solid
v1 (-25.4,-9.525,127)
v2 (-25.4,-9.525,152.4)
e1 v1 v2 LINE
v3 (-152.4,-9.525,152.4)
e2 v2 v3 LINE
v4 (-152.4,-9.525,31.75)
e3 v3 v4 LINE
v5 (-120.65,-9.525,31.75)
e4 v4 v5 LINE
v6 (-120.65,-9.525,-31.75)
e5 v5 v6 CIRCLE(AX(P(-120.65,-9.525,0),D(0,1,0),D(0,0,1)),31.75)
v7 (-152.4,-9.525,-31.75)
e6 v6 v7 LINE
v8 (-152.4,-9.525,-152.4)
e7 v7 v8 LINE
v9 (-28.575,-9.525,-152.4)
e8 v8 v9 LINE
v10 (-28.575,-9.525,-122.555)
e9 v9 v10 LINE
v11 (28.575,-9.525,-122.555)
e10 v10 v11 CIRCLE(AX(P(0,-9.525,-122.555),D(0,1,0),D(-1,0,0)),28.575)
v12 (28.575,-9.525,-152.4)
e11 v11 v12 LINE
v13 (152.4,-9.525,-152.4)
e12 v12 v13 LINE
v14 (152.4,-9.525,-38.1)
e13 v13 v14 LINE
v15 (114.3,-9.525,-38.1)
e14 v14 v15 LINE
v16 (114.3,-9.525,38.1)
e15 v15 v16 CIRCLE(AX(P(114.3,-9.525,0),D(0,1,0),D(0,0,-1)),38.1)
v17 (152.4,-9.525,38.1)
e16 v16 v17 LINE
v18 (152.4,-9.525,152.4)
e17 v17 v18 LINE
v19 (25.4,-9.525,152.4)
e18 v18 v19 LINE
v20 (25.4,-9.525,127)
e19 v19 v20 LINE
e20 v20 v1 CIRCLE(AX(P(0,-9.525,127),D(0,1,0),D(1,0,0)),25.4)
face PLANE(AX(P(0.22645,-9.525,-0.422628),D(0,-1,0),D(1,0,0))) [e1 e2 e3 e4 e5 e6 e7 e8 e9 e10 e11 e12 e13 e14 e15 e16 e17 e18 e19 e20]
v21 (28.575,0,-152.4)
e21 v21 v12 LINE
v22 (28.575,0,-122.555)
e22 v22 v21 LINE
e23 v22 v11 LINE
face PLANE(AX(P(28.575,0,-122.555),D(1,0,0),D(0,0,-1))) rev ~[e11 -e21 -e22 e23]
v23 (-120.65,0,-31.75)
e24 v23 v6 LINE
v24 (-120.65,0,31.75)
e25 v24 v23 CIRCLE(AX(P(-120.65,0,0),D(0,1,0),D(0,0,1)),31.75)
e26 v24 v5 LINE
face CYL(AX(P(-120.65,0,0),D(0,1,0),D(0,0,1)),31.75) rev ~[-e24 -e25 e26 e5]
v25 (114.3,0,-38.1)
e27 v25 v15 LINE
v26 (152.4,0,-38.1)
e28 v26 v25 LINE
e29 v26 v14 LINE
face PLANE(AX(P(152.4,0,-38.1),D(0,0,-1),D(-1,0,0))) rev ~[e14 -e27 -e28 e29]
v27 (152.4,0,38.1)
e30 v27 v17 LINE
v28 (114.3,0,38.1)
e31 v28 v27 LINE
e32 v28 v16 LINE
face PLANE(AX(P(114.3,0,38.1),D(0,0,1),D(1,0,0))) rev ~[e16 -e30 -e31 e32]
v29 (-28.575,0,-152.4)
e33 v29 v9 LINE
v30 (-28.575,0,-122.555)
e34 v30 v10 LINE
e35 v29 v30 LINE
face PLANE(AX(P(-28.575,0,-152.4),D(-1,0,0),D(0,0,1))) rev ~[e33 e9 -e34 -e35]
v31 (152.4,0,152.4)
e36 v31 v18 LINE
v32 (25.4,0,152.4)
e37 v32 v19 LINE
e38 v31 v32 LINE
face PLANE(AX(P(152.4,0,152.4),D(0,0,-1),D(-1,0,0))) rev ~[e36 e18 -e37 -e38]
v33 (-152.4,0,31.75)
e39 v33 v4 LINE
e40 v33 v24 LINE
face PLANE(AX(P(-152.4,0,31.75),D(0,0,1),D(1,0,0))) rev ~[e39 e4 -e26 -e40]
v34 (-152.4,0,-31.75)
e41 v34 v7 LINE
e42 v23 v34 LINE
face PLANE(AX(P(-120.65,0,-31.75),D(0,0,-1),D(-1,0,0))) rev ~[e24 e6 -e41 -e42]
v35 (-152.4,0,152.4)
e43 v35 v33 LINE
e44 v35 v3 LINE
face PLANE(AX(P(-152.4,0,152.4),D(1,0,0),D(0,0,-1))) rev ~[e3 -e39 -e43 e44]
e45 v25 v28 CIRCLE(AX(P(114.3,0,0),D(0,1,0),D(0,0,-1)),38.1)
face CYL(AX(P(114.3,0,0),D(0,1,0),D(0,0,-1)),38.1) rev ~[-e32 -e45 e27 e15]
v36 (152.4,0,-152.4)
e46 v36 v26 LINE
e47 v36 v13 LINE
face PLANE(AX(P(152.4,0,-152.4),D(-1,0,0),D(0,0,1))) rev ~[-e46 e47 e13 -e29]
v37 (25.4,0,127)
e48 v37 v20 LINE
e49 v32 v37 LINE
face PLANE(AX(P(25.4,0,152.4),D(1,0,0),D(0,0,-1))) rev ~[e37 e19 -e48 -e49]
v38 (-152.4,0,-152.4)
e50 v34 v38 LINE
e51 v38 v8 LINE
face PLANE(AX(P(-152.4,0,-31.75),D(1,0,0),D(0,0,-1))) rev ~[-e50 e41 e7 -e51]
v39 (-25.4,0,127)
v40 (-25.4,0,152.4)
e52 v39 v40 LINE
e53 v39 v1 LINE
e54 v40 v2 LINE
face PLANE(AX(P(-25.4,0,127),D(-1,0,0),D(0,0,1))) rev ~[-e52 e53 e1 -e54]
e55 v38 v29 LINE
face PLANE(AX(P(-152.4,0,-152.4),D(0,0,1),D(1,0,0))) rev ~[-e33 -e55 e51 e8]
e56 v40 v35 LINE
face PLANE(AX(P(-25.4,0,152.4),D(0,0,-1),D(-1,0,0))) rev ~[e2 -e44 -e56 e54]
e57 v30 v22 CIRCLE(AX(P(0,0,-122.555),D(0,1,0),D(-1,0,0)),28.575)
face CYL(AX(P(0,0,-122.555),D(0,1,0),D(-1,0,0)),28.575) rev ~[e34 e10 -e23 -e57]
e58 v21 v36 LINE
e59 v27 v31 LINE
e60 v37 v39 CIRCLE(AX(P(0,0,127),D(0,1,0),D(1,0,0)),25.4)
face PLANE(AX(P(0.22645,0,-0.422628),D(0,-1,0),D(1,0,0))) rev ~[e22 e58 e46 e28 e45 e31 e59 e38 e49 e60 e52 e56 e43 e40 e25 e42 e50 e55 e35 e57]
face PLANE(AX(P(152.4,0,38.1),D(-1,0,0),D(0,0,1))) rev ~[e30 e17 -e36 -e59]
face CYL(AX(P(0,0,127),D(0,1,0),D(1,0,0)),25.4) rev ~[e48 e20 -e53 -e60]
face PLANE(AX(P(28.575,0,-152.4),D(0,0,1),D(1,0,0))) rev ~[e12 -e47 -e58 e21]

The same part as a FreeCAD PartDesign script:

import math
import FreeCAD as App
import Part
import Sketcher

V = App.Vector
Q = App.Units.Quantity

doc = App.newDocument("Part")
body = doc.addObject("PartDesign::Body", "Body")

# Sketch on XZ plane
sketch1 = body.newObject("Sketcher::SketchObject", "Sketch")
sketch1.AttachmentSupport = (doc.getObject("XZ_Plane"), [""])
sketch1.MapMode = "FlatFace"
sketch1.addGeometry(Part.LineSegment(V(152, 38, 0), V(152, 152, 0)), False)
sketch1.addGeometry(Part.LineSegment(V(152, 152, 0), V(25, 152, 0)), False)
sketch1.addGeometry(Part.LineSegment(V(25, 152, 0), V(25, 127, 0)), False)
sketch1.addGeometry(Part.ArcOfCircle(Part.Circle(V(0, 127, 0), V(0, 0, 1), 25), math.radians(180), math.radians(360)), False)
sketch1.addGeometry(Part.LineSegment(V(-25, 127, 0), V(-25, 152, 0)), False)
sketch1.addGeometry(Part.LineSegment(V(-25, 152, 0), V(-152, 152, 0)), False)
sketch1.addGeometry(Part.LineSegment(V(-152, 152, 0), V(-152, 32, 0)), False)
sketch1.addGeometry(Part.LineSegment(V(-152, 32, 0), V(-121, 32, 0)), False)
sketch1.addGeometry(Part.ArcOfCircle(Part.Circle(V(-121, 0, 0), V(0, 0, 1), 32), math.radians(-90), math.radians(90)), False)
sketch1.addGeometry(Part.LineSegment(V(-121, -32, 0), V(-152, -32, 0)), False)
sketch1.addGeometry(Part.LineSegment(V(-152, -32, 0), V(-152, -152, 0)), False)
sketch1.addGeometry(Part.LineSegment(V(-152, -152, 0), V(-29, -152, 0)), False)
sketch1.addGeometry(Part.LineSegment(V(-29, -152, 0), V(-29, -123, 0)), False)
sketch1.addGeometry(Part.ArcOfCircle(Part.Circle(V(0, -123, 0), V(0, 0, 1), 29), math.radians(0), math.radians(180)), False)
sketch1.addGeometry(Part.LineSegment(V(29, -123, 0), V(29, -152, 0)), False)
sketch1.addGeometry(Part.LineSegment(V(29, -152, 0), V(152, -152, 0)), False)
sketch1.addGeometry(Part.LineSegment(V(152, -152, 0), V(152, -38, 0)), False)
sketch1.addGeometry(Part.LineSegment(V(152, -38, 0), V(114, -38, 0)), False)
sketch1.addGeometry(Part.ArcOfCircle(Part.Circle(V(114, 0, 0), V(0, 0, 1), 38), math.radians(90), math.radians(270)), False)
sketch1.addGeometry(Part.LineSegment(V(114, 38, 0), V(152, 38, 0)), False)
sketch1.addConstraint(Sketcher.Constraint("Coincident", 0, 2, 1, 1))
sketch1.addConstraint(Sketcher.Constraint("Coincident", 1, 2, 2, 1))
sketch1.addConstraint(Sketcher.Constraint("Tangent", 2, 2, 3, 2))
sketch1.addConstraint(Sketcher.Constraint("Tangent", 3, 1, 4, 1))
sketch1.addConstraint(Sketcher.Constraint("Coincident", 4, 2, 5, 1))
sketch1.addConstraint(Sketcher.Constraint("Coincident", 5, 2, 6, 1))
sketch1.addConstraint(Sketcher.Constraint("Coincident", 6, 2, 7, 1))
sketch1.addConstraint(Sketcher.Constraint("Tangent", 7, 2, 8, 2))
sketch1.addConstraint(Sketcher.Constraint("Tangent", 8, 1, 9, 1))
sketch1.addConstraint(Sketcher.Constraint("Coincident", 9, 2, 10, 1))
sketch1.addConstraint(Sketcher.Constraint("Coincident", 10, 2, 11, 1))
sketch1.addConstraint(Sketcher.Constraint("Coincident", 11, 2, 12, 1))
sketch1.addConstraint(Sketcher.Constraint("Tangent", 12, 2, 13, 2))
sketch1.addConstraint(Sketcher.Constraint("Tangent", 13, 1, 14, 1))
sketch1.addConstraint(Sketcher.Constraint("Coincident", 14, 2, 15, 1))
sketch1.addConstraint(Sketcher.Constraint("Coincident", 15, 2, 16, 1))
sketch1.addConstraint(Sketcher.Constraint("Coincident", 16, 2, 17, 1))
sketch1.addConstraint(Sketcher.Constraint("Tangent", 17, 2, 18, 2))
sketch1.addConstraint(Sketcher.Constraint("Tangent", 18, 1, 19, 1))
sketch1.addConstraint(Sketcher.Constraint("Coincident", 19, 2, 0, 1))
sketch1.addConstraint(Sketcher.Constraint("Vertical", 0))
sketch1.addConstraint(Sketcher.Constraint("Horizontal", 1))
sketch1.addConstraint(Sketcher.Constraint("Vertical", 2))
sketch1.addConstraint(Sketcher.Constraint("Vertical", 4))
sketch1.addConstraint(Sketcher.Constraint("Horizontal", 5))
sketch1.addConstraint(Sketcher.Constraint("Vertical", 6))
sketch1.addConstraint(Sketcher.Constraint("Horizontal", 7))
sketch1.addConstraint(Sketcher.Constraint("Horizontal", 9))
sketch1.addConstraint(Sketcher.Constraint("Vertical", 10))
sketch1.addConstraint(Sketcher.Constraint("Horizontal", 11))
sketch1.addConstraint(Sketcher.Constraint("Vertical", 12))
sketch1.addConstraint(Sketcher.Constraint("Vertical", 14))
sketch1.addConstraint(Sketcher.Constraint("Horizontal", 15))
sketch1.addConstraint(Sketcher.Constraint("Vertical", 16))
sketch1.addConstraint(Sketcher.Constraint("Horizontal", 17))
sketch1.addConstraint(Sketcher.Constraint("Horizontal", 19))
sketch1.addConstraint(Sketcher.Constraint("Symmetric", 0, 2, 10, 2, -1, 1))
sketch1.addConstraint(Sketcher.Constraint("Symmetric", 5, 2, 15, 2, -1, 1))
sketch1.addConstraint(Sketcher.Constraint("Symmetric", 1, 2, 4, 2, -2))
sketch1.addConstraint(Sketcher.Constraint("Symmetric", 6, 2, 9, 2, -1))
sketch1.addConstraint(Sketcher.Constraint("PointOnObject", 13, 3, -2))
sketch1.addConstraint(Sketcher.Constraint("PointOnObject", 18, 3, -1))
sketch1.addConstraint(Sketcher.Constraint("Radius", 3, Q("1 in")))
sketch1.addConstraint(Sketcher.Constraint("Radius", 18, Q("1.5 in")))
sketch1.addConstraint(Sketcher.Constraint("DistanceX", 1, 2, 1, 1, Q("5 in")))
sketch1.addConstraint(Sketcher.Constraint("DistanceY", 2, 2, 2, 1, Q("1 in")))
sketch1.addConstraint(Sketcher.Constraint("Radius", 8, Q("1.25 in")))
sketch1.addConstraint(Sketcher.Constraint("DistanceX", 17, 2, 17, 1, Q("1.5 in")))
sketch1.addConstraint(Sketcher.Constraint("DistanceY", 0, 1, 0, 2, Q("4.5 in")))
sketch1.addConstraint(Sketcher.Constraint("Radius", 13, Q("1.125 in")))
sketch1.addConstraint(Sketcher.Constraint("DistanceX", 7, 1, 7, 2, Q("1.25 in")))
sketch1.addConstraint(Sketcher.Constraint("DistanceY", 12, 1, 12, 2, Q("1.175 in")))
pad1 = body.newObject("PartDesign::Pad", "Pad")
pad1.Profile = sketch1
pad1.Length = Q("0.375 in")

doc.recompute()
